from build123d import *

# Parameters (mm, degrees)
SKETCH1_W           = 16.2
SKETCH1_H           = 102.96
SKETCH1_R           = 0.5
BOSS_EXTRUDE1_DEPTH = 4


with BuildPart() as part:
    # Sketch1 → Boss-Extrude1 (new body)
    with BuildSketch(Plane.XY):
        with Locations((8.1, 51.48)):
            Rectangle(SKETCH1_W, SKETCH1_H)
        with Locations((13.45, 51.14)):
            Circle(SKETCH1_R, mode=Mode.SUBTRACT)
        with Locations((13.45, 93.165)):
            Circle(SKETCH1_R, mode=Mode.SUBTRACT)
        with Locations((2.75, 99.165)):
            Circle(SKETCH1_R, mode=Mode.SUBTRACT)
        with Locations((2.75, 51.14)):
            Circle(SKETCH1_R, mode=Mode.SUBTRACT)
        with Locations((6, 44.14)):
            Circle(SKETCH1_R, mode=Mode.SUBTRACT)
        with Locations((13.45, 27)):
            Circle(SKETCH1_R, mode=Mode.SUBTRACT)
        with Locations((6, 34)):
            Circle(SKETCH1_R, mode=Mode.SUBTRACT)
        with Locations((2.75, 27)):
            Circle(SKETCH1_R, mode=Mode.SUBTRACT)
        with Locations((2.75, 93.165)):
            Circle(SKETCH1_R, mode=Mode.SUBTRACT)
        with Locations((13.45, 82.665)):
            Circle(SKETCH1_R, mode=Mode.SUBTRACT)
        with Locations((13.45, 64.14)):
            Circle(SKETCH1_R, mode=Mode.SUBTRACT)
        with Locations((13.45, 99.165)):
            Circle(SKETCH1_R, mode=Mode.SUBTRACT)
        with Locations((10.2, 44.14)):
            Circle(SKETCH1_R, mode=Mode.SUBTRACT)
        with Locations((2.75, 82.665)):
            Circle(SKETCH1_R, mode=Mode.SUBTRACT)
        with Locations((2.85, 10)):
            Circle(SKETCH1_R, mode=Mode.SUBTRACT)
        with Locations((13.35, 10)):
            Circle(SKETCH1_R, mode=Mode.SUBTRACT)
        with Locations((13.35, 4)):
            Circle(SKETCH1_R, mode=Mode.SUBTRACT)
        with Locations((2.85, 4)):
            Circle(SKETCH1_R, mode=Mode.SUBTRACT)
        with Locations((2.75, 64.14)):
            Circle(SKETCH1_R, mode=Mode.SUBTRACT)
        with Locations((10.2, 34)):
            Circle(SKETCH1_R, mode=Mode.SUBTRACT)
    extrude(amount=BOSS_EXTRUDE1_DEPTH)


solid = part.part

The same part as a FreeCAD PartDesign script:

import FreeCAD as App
import Part
import Sketcher
from FreeCAD import Vector

doc = App.newDocument("Part")
body = doc.addObject("PartDesign::Body", "Body")

# Sketch on XY plane
sketch1 = doc.addObject("Sketcher::SketchObject", "Sketch")
body.addObject(sketch1)
sketch1.AttachmentSupport = (doc.XY_Plane, [""])
sketch1.MapMode = "FlatFace"
sketch1.addGeometry([
    Part.LineSegment(Vector(0, 103, 0), Vector(0, 0, 0)),  # 0
    Part.LineSegment(Vector(0, 0, 0), Vector(16.2, 0, 0)),  # 1
    Part.LineSegment(Vector(16.2, 0, 0), Vector(16.2, 103, 0)),  # 2
    Part.LineSegment(Vector(16.2, 103, 0), Vector(0, 103, 0)),  # 3
    Part.Circle(Vector(2.9, 4, 0), Vector(0, 0, 1), 0.5),  # 4
    Part.Circle(Vector(2.9, 10, 0), Vector(0, 0, 1), 0.5),  # 5
    Part.Circle(Vector(2.8, 27, 0), Vector(0, 0, 1), 0.5),  # 6
    Part.Circle(Vector(2.8, 51.1, 0), Vector(0, 0, 1), 0.5),  # 7
    Part.Circle(Vector(6, 34, 0), Vector(0, 0, 1), 0.5),  # 8
    Part.Circle(Vector(6, 44.1, 0), Vector(0, 0, 1), 0.5),  # 9
    Part.Circle(Vector(13.3, 4, 0), Vector(0, 0, 1), 0.5),  # 10
    Part.Circle(Vector(13.3, 10, 0), Vector(0, 0, 1), 0.5),  # 11
    Part.Circle(Vector(13.4, 27, 0), Vector(0, 0, 1), 0.5),  # 12
    Part.Circle(Vector(10.2, 34, 0), Vector(0, 0, 1), 0.5),  # 13
    Part.Circle(Vector(10.2, 44.1, 0), Vector(0, 0, 1), 0.5),  # 14
    Part.Circle(Vector(13.4, 51.1, 0), Vector(0, 0, 1), 0.5),  # 15
    Part.Circle(Vector(2.8, 64.1, 0), Vector(0, 0, 1), 0.5),  # 16
    Part.Circle(Vector(2.8, 82.7, 0), Vector(0, 0, 1), 0.5),  # 17
    Part.Circle(Vector(2.8, 93.2, 0), Vector(0, 0, 1), 0.5),  # 18
    Part.Circle(Vector(2.8, 99.2, 0), Vector(0, 0, 1), 0.5),  # 19
    Part.Circle(Vector(13.4, 64.1, 0), Vector(0, 0, 1), 0.5),  # 20
    Part.Circle(Vector(13.4, 82.7, 0), Vector(0, 0, 1), 0.5),  # 21
    Part.Circle(Vector(13.4, 93.2, 0), Vector(0, 0, 1), 0.5),  # 22
    Part.Circle(Vector(13.4, 99.2, 0), Vector(0, 0, 1), 0.5),  # 23
], False)
sketch1.addConstraint([
    Sketcher.Constraint("Coincident", 0, 2, 1, 1),
    Sketcher.Constraint("Coincident", 1, 2, 2, 1),
    Sketcher.Constraint("Coincident", 2, 2, 3, 1),
    Sketcher.Constraint("Coincident", 3, 2, 0, 1),
    Sketcher.Constraint("Vertical", 0),
    Sketcher.Constraint("Horizontal", 1),
    Sketcher.Constraint("Vertical", 2),
    Sketcher.Constraint("Horizontal", 3),
    Sketcher.Constraint("Coincident", 0, 2, -1, 1),
    Sketcher.Constraint("Equal", 4, 5),
    Sketcher.Constraint("Equal", 5, 6),
    Sketcher.Constraint("Equal", 6, 7),
    Sketcher.Constraint("Equal", 7, 8),
    Sketcher.Constraint("Equal", 8, 9),
    Sketcher.Constraint("Equal", 9, 10),
    Sketcher.Constraint("Equal", 10, 11),
    Sketcher.Constraint("Equal", 11, 12),
    Sketcher.Constraint("Equal", 12, 13),
    Sketcher.Constraint("Equal", 13, 14),
    Sketcher.Constraint("Equal", 14, 15),
    Sketcher.Constraint("Equal", 15, 16),
    Sketcher.Constraint("Equal", 16, 17),
    Sketcher.Constraint("Equal", 17, 18),
    Sketcher.Constraint("Equal", 18, 19),
    Sketcher.Constraint("Equal", 19, 20),
    Sketcher.Constraint("Equal", 20, 21),
    Sketcher.Constraint("Equal", 21, 22),
    Sketcher.Constraint("Equal", 22, 23),
    Sketcher.Constraint("Horizontal", 4, 3, 10, 3),
    Sketcher.Constraint("Horizontal", 5, 3, 11, 3),
    Sketcher.Constraint("Horizontal", 6, 3, 12, 3),
    Sketcher.Constraint("Horizontal", 8, 3, 13, 3),
    Sketcher.Constraint("Horizontal", 9, 3, 14, 3),
    Sketcher.Constraint("Horizontal", 7, 3, 15, 3),
    Sketcher.Constraint("Horizontal", 16, 3, 20, 3),
    Sketcher.Constraint("Horizontal", 17, 3, 21, 3),
    Sketcher.Constraint("Horizontal", 18, 3, 22, 3),
    Sketcher.Constraint("Horizontal", 19, 3, 23, 3),
    Sketcher.Constraint("Vertical", 4, 3, 5, 3),
    Sketcher.Constraint("Vertical", 6, 3, 7, 3),
    Sketcher.Constraint("Vertical", 8, 3, 9, 3),
    Sketcher.Constraint("Vertical", 10, 3, 11, 3),
    Sketcher.Constraint("Vertical", 13, 3, 14, 3),
    Sketcher.Constraint("Vertical", 12, 3, 15, 3),
    Sketcher.Constraint("Vertical", 7, 3, 16, 3),
    Sketcher.Constraint("Vertical", 16, 3, 17, 3),
    Sketcher.Constraint("Vertical", 17, 3, 18, 3),
    Sketcher.Constraint("Vertical", 18, 3, 19, 3),
    Sketcher.Constraint("Vertical", 15, 3, 20, 3),
    Sketcher.Constraint("Vertical", 20, 3, 21, 3),
    Sketcher.Constraint("Vertical", 21, 3, 22, 3),
    Sketcher.Constraint("Vertical", 22, 3, 23, 3),
    Sketcher.Constraint("Diameter", 4, 1.0),
    Sketcher.Constraint("DistanceX", 1, 1, 1, 2, 16.2),
    Sketcher.Constraint("DistanceY", -1, 1, 4, 3, 4.0),
    Sketcher.Constraint("DistanceY", -1, 1, 5, 3, 10.0),
    Sketcher.Constraint("DistanceY", -1, 1, 6, 3, 27.0),
    Sketcher.Constraint("DistanceX", -1, 1, 8, 3, 6.0),
    Sketcher.Constraint("DistanceY", -1, 1, 8, 3, 34.0),
    Sketcher.Constraint("DistanceY", 9, 3, 7, 3, 7.0),
    Sketcher.Constraint("DistanceY", 7, 3, 16, 3, 13.0),
    Sketcher.Constraint("DistanceY", 18, 3, 19, 3, 6.0),
    Sketcher.Constraint("DistanceY", 0, 2, 0, 1, 102.96),
    Sketcher.Constraint("DistanceX", -1, 1, 13, 3, 10.2),
    Sketcher.Constraint("DistanceX", 6, 3, 5, 3, 0.1),
    Sketcher.Constraint("DistanceX", 4, 3, 10, 3, 10.5),
    Sketcher.Constraint("DistanceX", 6, 3, 12, 3, 10.7),
    Sketcher.Constraint("DistanceY", 17, 3, 18, 3, 10.5),
    Sketcher.Constraint("DistanceX", -1, 1, 4, 3, 2.85),
    Sketcher.Constraint("DistanceY", -1, 1, 7, 3, 51.14),
    Sketcher.Constraint("DistanceY", -1, 1, 17, 3, 82.665),
])
pad1 = doc.addObject("PartDesign::Pad", "Pad")
body.addObject(pad1)
pad1.Profile = sketch1
pad1.Length = 4

doc.recompute()
